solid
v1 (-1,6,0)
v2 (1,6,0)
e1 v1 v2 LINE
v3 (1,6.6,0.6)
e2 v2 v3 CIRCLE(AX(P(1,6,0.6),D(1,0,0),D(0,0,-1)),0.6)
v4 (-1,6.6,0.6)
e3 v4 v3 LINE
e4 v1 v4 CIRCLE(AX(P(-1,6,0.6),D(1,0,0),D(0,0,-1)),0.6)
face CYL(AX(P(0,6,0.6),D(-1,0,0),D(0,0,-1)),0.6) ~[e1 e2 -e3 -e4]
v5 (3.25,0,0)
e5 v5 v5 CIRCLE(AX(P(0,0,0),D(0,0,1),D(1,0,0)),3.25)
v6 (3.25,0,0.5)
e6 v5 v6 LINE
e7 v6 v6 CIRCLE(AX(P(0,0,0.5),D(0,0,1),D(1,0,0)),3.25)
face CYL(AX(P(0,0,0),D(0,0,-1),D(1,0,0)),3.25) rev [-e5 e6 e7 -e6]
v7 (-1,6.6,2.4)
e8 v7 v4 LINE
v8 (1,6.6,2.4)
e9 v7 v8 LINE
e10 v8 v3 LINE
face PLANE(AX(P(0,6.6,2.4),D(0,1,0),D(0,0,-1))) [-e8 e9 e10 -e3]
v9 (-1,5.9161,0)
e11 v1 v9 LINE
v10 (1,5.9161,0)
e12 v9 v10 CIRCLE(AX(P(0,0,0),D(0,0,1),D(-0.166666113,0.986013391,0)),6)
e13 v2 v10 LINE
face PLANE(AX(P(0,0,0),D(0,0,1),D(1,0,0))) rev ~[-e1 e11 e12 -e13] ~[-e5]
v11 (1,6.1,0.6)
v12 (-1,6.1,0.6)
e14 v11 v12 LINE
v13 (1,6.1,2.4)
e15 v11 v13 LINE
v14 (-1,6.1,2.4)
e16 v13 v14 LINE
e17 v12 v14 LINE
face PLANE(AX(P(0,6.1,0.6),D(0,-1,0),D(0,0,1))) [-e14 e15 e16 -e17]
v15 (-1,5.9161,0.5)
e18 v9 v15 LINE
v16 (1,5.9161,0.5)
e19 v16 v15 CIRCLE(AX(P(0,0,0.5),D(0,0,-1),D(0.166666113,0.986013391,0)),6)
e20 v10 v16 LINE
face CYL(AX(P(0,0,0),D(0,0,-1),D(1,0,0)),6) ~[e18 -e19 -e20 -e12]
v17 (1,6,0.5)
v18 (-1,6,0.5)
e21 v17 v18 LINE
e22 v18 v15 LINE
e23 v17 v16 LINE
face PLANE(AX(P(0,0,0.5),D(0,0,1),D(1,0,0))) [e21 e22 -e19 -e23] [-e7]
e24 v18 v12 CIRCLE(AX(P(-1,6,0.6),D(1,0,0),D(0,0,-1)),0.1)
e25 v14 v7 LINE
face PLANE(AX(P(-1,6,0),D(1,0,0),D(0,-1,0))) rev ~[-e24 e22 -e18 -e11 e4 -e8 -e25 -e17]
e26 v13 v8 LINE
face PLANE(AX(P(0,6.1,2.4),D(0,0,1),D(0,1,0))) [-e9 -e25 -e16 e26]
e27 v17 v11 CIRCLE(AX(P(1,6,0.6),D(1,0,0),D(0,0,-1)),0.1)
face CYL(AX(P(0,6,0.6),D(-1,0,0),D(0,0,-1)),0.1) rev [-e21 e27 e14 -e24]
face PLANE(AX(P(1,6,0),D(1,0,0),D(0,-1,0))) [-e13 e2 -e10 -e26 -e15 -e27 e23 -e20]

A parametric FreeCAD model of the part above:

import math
import FreeCAD as App
import Part
import Sketcher

V = App.Vector
Q = App.Units.Quantity

doc = App.newDocument("Part")
body = doc.addObject("PartDesign::Body", "Body")
body.AllowCompound = True

# Sketch on XY plane
sketch1 = doc.addObject("Sketcher::SketchObject", "Sketch")
body.addObject(sketch1)
sketch1.AttachmentSupport = (doc.XY_Plane, [""])
sketch1.MapMode = "FlatFace"
sketch1.addGeometry([
    Part.Circle(V(0, 0, 0), V(0, 0, 1), 6),
    Part.Circle(V(0, 0, 0), V(0, 0, 1), 3.2),
], False)
sketch1.addConstraint([
    Sketcher.Constraint("Coincident", 0, 3, -1, 1),
    Sketcher.Constraint("Coincident", 1, 3, -1, 1),
    Sketcher.Constraint("Diameter", 0, Q("12 mm")),
    Sketcher.Constraint("Diameter", 1, Q("6.5 mm")),
])
pad1 = doc.addObject("PartDesign::Pad", "Pad")
body.addObject(pad1)
pad1.Profile = sketch1
pad1.Length = 0.5

# Sketch on YZ plane
sketch2 = doc.addObject("Sketcher::SketchObject", "Sketch001")
body.addObject(sketch2)
sketch2.AttachmentSupport = (doc.YZ_Plane, [""])
sketch2.MapMode = "FlatFace"
sketch2.addGeometry([
    Part.LineSegment(V(6, 0.5, 0), V(6, 0, 0)),  # 0
    Part.ArcOfCircle(Part.Circle(V(6, 0.6, 0), V(0, 0, 1), 0.6), math.radians(-90), math.radians(0)),  # 1
    Part.LineSegment(V(6.6, 0.6, 0), V(6.6, 2.4, 0)),  # 2
    Part.LineSegment(V(6.6, 2.4, 0), V(6.1, 2.4, 0)),  # 3
    Part.LineSegment(V(6.1, 2.4, 0), V(6.1, 0.6, 0)),  # 4
    Part.ArcOfCircle(Part.Circle(V(6, 0.6, 0), V(0, 0, 1), 0.1), math.radians(-90), math.radians(0)),  # 5
], False)
sketch2.addConstraint([
    Sketcher.Constraint("Coincident", 0, 2, 1, 1),
    Sketcher.Constraint("Tangent", 1, 2, 2, 1),
    Sketcher.Constraint("Coincident", 2, 2, 3, 1),
    Sketcher.Constraint("Coincident", 3, 2, 4, 1),
    Sketcher.Constraint("Tangent", 4, 2, 5, 2),
    Sketcher.Constraint("Coincident", 5, 1, 0, 1),
    Sketcher.Constraint("Vertical", 0),
    Sketcher.Constraint("Vertical", 2),
    Sketcher.Constraint("Horizontal", 3),
    Sketcher.Constraint("Vertical", 4),
    Sketcher.Constraint("Coincident", 5, 3, 1, 3),
    Sketcher.Constraint("PointOnObject", 0, 2, -1),
    Sketcher.Constraint("Vertical", 5, 3, 0, 2),
    Sketcher.Constraint("Radius", 5, Q("0.1 mm")),
    Sketcher.Constraint("DistanceX", 3, 2, 3, 1, Q("0.5 mm")),
    Sketcher.Constraint("DistanceY", -1, 1, 2, 2, Q("2.4 mm")),
    Sketcher.Constraint("DistanceX", -1, 1, 1, 3, Q("6 mm")),
])
pad2 = doc.addObject("PartDesign::Pad", "Pad001")
body.addObject(pad2)
pad2.Profile = sketch2
pad2.Length = 2
pad2.Midplane = True

# Sketch on XY plane
sketch3 = doc.addObject("Sketcher::SketchObject", "Sketch002")
body.addObject(sketch3)
sketch3.AttachmentSupport = (doc.XY_Plane, [""])
sketch3.MapMode = "FlatFace"
sketch3.addGeometry([
    Part.ArcOfCircle(Part.Circle(V(0, 0, 0), V(0, 0, 1), 6), math.radians(90), math.radians(99.59)),  # 0
    Part.LineSegment(V(-1, 5.92, 0), V(-1, 6, 0)),  # 1
    Part.LineSegment(V(-1, 6, 0), V(0, 6, 0)),  # 2
    Part.LineSegment(V(1, 6, 0), V(1, 5.92, 0)),  # 3
    Part.ArcOfCircle(Part.Circle(V(0, 0, 0), V(0, 0, 1), 6), math.radians(80.41), math.radians(90)),  # 4
    Part.LineSegment(V(0, 6, 0), V(1, 6, 0)),  # 5
], False)
sketch3.addConstraint([
    Sketcher.Constraint("Coincident", 0, 2, 1, 1),
    Sketcher.Constraint("Coincident", 1, 2, 2, 1),
    Sketcher.Constraint("Tangent", 2, 2, 0, 1),
    Sketcher.Constraint("Coincident", 3, 2, 4, 1),
    Sketcher.Constraint("Tangent", 4, 2, 5, 1),
    Sketcher.Constraint("Coincident", 5, 2, 3, 1),
    Sketcher.Constraint("Vertical", 1),
    Sketcher.Constraint("Horizontal", 2),
    Sketcher.Constraint("Vertical", 3),
    Sketcher.Constraint("Horizontal", 5),
    Sketcher.Constraint("Coincident", 0, 3, -1, 1),
    Sketcher.Constraint("Coincident", 4, 3, -1, 1),
    Sketcher.Constraint("Equal", 0, 4),
    Sketcher.Constraint("Horizontal", 0, 2, 3, 2),
    Sketcher.Constraint("Radius", 0, Q("6 mm")),
    Sketcher.Constraint("DistanceX", 2, 1, 2, 2, Q("1 mm")),
])
pad3 = doc.addObject("PartDesign::Pad", "Pad002")
body.addObject(pad3)
pad3.Profile = sketch3
pad3.Length = 0.5

doc.recompute()
